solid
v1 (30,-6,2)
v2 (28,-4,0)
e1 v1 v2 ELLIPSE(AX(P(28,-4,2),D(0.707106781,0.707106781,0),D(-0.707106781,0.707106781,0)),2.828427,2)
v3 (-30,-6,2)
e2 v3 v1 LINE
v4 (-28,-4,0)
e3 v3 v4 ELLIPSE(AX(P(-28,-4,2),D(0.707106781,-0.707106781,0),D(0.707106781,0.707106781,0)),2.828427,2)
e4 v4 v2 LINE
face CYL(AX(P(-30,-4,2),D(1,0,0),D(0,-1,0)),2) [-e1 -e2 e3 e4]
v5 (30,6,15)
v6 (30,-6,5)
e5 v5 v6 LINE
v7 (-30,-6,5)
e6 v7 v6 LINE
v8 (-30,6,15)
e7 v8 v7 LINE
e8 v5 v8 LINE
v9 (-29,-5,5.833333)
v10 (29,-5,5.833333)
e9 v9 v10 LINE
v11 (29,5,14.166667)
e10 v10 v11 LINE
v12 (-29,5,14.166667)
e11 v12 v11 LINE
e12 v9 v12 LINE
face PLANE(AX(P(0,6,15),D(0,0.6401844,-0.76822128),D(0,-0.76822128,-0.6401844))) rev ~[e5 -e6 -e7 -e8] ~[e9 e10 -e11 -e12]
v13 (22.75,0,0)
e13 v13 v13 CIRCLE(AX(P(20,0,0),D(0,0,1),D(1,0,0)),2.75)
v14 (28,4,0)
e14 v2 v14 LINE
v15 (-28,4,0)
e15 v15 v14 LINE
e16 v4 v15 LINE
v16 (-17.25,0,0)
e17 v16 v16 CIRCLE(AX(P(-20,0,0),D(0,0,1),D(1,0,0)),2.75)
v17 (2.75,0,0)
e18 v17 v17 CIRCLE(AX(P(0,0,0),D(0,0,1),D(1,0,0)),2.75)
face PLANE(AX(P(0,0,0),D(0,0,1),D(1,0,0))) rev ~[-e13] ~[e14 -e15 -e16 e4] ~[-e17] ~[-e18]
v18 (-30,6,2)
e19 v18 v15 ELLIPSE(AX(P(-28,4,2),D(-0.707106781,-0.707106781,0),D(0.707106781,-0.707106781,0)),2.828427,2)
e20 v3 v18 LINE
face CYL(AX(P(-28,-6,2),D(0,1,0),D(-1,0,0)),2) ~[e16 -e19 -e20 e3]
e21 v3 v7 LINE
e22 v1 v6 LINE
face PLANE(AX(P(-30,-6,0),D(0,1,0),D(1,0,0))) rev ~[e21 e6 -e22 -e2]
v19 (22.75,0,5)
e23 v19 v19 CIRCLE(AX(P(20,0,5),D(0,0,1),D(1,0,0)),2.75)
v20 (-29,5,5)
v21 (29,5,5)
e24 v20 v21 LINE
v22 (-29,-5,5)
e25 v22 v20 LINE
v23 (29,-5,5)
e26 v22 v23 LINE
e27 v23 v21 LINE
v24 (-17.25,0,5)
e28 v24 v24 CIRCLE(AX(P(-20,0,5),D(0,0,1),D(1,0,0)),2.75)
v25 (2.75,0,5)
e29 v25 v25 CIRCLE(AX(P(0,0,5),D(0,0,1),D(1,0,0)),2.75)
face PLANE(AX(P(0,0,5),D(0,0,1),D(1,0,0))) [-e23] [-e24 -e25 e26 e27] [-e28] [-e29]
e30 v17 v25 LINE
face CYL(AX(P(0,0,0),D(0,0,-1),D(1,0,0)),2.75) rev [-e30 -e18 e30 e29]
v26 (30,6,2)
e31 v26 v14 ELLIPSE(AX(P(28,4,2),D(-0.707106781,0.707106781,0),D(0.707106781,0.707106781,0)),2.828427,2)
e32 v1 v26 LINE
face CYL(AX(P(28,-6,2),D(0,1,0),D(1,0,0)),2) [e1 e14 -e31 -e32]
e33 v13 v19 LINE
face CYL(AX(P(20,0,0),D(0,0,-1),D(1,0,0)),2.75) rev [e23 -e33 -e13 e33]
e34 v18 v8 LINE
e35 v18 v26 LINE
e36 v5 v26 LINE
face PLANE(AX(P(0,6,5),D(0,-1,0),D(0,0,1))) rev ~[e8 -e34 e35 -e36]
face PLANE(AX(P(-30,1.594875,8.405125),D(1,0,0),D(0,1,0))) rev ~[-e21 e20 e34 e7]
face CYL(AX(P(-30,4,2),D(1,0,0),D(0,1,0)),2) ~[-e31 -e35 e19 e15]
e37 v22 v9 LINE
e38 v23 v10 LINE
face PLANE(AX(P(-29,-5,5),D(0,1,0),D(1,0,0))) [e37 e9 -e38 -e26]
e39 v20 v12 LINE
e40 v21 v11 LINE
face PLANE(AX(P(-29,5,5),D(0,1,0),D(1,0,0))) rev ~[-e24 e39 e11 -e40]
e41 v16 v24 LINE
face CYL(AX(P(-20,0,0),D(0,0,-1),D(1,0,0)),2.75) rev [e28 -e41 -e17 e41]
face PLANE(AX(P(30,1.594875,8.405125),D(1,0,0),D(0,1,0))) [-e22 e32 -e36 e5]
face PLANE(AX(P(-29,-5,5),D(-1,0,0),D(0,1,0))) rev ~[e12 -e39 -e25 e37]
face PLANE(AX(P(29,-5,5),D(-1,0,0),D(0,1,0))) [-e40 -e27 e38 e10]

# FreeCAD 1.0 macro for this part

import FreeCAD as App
import Part
import Sketcher
Q = App.Units.Quantity


def edges_at(feature, points):
    """Names of the edges that pass closest to the given points."""
    edges = feature.Shape.Edges
    near = lambda p: min(range(len(edges)), key=lambda i: edges[i].distToShape(Part.Vertex(*p))[0])
    return sorted({f"Edge{near(p) + 1}" for p in points})


def add_polygon(sketch, points):
    """Adds a closed chain of lines whose ends are joined by coincident constraints."""
    first, n = sketch.GeometryCount, len(points)
    for a, b in zip(points, points[1:] + points[:1]):
        sketch.addGeometry(Part.LineSegment(App.Vector(*a, 0), App.Vector(*b, 0)), False)
    for i in range(n):
        sketch.addConstraint(Sketcher.Constraint("Coincident", first + i, 2, first + (i + 1) % n, 1))

doc = App.newDocument("Part")
body = doc.addObject("PartDesign::Body", "Body")

# Sketch on XY plane
sketch1 = body.newObject("Sketcher::SketchObject", "Sketch")
sketch1.AttachmentSupport = (doc.getObject("XY_Plane"), [""])
sketch1.MapMode = "FlatFace"
add_polygon(sketch1, [(-30, 6), (-30, -6), (30, -6), (30, 6)])  # lines 0-3
sketch1.addGeometry(Part.Circle(App.Vector(-20, 0, 0), App.Vector(0, 0, 1), 2.8), False)  # 4
sketch1.addGeometry(Part.Circle(App.Vector(0, 0, 0), App.Vector(0, 0, 1), 2.8), False)  # 5
sketch1.addGeometry(Part.Circle(App.Vector(20, 0, 0), App.Vector(0, 0, 1), 2.8), False)  # 6
sketch1.addConstraint(Sketcher.Constraint("Vertical", 0))
sketch1.addConstraint(Sketcher.Constraint("Horizontal", 1))
sketch1.addConstraint(Sketcher.Constraint("Vertical", 2))
sketch1.addConstraint(Sketcher.Constraint("Horizontal", 3))
sketch1.addConstraint(Sketcher.Constraint("Coincident", 5, 3, -1, 1))
sketch1.addConstraint(Sketcher.Constraint("Equal", 4, 5))
sketch1.addConstraint(Sketcher.Constraint("Equal", 5, 6))
sketch1.addConstraint(Sketcher.Constraint("Symmetric", 4, 3, 6, 3, -1, 1))
sketch1.addConstraint(Sketcher.Constraint("Symmetric", 0, 2, 2, 2, -1, 1))
sketch1.addConstraint(Sketcher.Constraint("PointOnObject", 4, 3, -1))
sketch1.addConstraint(Sketcher.Constraint("Diameter", 4, Q("5.5 mm")))
sketch1.addConstraint(Sketcher.Constraint("DistanceX", 1, 1, 1, 2, Q("60 mm")))
sketch1.addConstraint(Sketcher.Constraint("DistanceY", 0, 2, 0, 1, Q("12 mm")))
sketch1.addConstraint(Sketcher.Constraint("DistanceX", 4, 3, -1, 1, Q("20 mm")))
pad1 = body.newObject("PartDesign::Pad", "Pad")
pad1.Profile = sketch1
pad1.Length = 5

# Sketch on YZ plane
sketch2 = body.newObject("Sketcher::SketchObject", "Sketch001")
sketch2.AttachmentSupport = (doc.getObject("YZ_Plane"), [""])
sketch2.MapMode = "FlatFace"
add_polygon(sketch2, [(6, 15), (-6, 5), (6, 5)])  # lines 0-2
sketch2.addConstraint(Sketcher.Constraint("Horizontal", 1))
sketch2.addConstraint(Sketcher.Constraint("Vertical", 2))
sketch2.addConstraint(Sketcher.Constraint("DistanceX", 1, 1, 1, 2, Q("12 mm")))
sketch2.addConstraint(Sketcher.Constraint("DistanceY", 2, 1, 2, 2, Q("10 mm")))
sketch2.addConstraint(Sketcher.Constraint("DistanceX", 0, 2, -1, 1, Q("6 mm")))
sketch2.addConstraint(Sketcher.Constraint("DistanceY", -1, 1, 0, 2, Q("5 mm")))
pad2 = body.newObject("PartDesign::Pad", "Pad001")
pad2.Profile = sketch2
pad2.Type = "TwoLengths"
pad2.Length = 30
pad2.Length2 = 30
pad2.Reversed = True

# Sketch on XY plane
sketch3 = body.newObject("Sketcher::SketchObject", "Sketch002")
sketch3.AttachmentSupport = (doc.getObject("XY_Plane"), [""])
sketch3.MapMode = "FlatFace"
sketch3.AttachmentOffset = App.Placement(App.Vector(0, 0, 5), App.Rotation())
add_polygon(sketch3, [(-29, 5), (-29, -5), (29, -5), (29, 5)])  # lines 0-3
sketch3.addConstraint(Sketcher.Constraint("Vertical", 0))
sketch3.addConstraint(Sketcher.Constraint("Horizontal", 1))
sketch3.addConstraint(Sketcher.Constraint("Vertical", 2))
sketch3.addConstraint(Sketcher.Constraint("Horizontal", 3))
sketch3.addConstraint(Sketcher.Constraint("Symmetric", 0, 2, 2, 2, -1, 1))
sketch3.addConstraint(Sketcher.Constraint("DistanceX", 1, 1, 1, 2, Q("58 mm")))
sketch3.addConstraint(Sketcher.Constraint("DistanceY", 0, 2, 0, 1, Q("10 mm")))
pocket1 = body.newObject("PartDesign::Pocket", "Pocket")
pocket1.Profile = sketch3
pocket1.Length = 10.001
pocket1.Reversed = True
doc.recompute()

fillet = body.newObject("PartDesign::Fillet", "Fillet")
fillet.Base = (pocket1, edges_at(pocket1, [
    (0, 6, 0),
    (30, 0, 0),
    (0, -6, 0),
    (-30, 0, 0),
]))
fillet.Radius = 2

doc.recompute()
